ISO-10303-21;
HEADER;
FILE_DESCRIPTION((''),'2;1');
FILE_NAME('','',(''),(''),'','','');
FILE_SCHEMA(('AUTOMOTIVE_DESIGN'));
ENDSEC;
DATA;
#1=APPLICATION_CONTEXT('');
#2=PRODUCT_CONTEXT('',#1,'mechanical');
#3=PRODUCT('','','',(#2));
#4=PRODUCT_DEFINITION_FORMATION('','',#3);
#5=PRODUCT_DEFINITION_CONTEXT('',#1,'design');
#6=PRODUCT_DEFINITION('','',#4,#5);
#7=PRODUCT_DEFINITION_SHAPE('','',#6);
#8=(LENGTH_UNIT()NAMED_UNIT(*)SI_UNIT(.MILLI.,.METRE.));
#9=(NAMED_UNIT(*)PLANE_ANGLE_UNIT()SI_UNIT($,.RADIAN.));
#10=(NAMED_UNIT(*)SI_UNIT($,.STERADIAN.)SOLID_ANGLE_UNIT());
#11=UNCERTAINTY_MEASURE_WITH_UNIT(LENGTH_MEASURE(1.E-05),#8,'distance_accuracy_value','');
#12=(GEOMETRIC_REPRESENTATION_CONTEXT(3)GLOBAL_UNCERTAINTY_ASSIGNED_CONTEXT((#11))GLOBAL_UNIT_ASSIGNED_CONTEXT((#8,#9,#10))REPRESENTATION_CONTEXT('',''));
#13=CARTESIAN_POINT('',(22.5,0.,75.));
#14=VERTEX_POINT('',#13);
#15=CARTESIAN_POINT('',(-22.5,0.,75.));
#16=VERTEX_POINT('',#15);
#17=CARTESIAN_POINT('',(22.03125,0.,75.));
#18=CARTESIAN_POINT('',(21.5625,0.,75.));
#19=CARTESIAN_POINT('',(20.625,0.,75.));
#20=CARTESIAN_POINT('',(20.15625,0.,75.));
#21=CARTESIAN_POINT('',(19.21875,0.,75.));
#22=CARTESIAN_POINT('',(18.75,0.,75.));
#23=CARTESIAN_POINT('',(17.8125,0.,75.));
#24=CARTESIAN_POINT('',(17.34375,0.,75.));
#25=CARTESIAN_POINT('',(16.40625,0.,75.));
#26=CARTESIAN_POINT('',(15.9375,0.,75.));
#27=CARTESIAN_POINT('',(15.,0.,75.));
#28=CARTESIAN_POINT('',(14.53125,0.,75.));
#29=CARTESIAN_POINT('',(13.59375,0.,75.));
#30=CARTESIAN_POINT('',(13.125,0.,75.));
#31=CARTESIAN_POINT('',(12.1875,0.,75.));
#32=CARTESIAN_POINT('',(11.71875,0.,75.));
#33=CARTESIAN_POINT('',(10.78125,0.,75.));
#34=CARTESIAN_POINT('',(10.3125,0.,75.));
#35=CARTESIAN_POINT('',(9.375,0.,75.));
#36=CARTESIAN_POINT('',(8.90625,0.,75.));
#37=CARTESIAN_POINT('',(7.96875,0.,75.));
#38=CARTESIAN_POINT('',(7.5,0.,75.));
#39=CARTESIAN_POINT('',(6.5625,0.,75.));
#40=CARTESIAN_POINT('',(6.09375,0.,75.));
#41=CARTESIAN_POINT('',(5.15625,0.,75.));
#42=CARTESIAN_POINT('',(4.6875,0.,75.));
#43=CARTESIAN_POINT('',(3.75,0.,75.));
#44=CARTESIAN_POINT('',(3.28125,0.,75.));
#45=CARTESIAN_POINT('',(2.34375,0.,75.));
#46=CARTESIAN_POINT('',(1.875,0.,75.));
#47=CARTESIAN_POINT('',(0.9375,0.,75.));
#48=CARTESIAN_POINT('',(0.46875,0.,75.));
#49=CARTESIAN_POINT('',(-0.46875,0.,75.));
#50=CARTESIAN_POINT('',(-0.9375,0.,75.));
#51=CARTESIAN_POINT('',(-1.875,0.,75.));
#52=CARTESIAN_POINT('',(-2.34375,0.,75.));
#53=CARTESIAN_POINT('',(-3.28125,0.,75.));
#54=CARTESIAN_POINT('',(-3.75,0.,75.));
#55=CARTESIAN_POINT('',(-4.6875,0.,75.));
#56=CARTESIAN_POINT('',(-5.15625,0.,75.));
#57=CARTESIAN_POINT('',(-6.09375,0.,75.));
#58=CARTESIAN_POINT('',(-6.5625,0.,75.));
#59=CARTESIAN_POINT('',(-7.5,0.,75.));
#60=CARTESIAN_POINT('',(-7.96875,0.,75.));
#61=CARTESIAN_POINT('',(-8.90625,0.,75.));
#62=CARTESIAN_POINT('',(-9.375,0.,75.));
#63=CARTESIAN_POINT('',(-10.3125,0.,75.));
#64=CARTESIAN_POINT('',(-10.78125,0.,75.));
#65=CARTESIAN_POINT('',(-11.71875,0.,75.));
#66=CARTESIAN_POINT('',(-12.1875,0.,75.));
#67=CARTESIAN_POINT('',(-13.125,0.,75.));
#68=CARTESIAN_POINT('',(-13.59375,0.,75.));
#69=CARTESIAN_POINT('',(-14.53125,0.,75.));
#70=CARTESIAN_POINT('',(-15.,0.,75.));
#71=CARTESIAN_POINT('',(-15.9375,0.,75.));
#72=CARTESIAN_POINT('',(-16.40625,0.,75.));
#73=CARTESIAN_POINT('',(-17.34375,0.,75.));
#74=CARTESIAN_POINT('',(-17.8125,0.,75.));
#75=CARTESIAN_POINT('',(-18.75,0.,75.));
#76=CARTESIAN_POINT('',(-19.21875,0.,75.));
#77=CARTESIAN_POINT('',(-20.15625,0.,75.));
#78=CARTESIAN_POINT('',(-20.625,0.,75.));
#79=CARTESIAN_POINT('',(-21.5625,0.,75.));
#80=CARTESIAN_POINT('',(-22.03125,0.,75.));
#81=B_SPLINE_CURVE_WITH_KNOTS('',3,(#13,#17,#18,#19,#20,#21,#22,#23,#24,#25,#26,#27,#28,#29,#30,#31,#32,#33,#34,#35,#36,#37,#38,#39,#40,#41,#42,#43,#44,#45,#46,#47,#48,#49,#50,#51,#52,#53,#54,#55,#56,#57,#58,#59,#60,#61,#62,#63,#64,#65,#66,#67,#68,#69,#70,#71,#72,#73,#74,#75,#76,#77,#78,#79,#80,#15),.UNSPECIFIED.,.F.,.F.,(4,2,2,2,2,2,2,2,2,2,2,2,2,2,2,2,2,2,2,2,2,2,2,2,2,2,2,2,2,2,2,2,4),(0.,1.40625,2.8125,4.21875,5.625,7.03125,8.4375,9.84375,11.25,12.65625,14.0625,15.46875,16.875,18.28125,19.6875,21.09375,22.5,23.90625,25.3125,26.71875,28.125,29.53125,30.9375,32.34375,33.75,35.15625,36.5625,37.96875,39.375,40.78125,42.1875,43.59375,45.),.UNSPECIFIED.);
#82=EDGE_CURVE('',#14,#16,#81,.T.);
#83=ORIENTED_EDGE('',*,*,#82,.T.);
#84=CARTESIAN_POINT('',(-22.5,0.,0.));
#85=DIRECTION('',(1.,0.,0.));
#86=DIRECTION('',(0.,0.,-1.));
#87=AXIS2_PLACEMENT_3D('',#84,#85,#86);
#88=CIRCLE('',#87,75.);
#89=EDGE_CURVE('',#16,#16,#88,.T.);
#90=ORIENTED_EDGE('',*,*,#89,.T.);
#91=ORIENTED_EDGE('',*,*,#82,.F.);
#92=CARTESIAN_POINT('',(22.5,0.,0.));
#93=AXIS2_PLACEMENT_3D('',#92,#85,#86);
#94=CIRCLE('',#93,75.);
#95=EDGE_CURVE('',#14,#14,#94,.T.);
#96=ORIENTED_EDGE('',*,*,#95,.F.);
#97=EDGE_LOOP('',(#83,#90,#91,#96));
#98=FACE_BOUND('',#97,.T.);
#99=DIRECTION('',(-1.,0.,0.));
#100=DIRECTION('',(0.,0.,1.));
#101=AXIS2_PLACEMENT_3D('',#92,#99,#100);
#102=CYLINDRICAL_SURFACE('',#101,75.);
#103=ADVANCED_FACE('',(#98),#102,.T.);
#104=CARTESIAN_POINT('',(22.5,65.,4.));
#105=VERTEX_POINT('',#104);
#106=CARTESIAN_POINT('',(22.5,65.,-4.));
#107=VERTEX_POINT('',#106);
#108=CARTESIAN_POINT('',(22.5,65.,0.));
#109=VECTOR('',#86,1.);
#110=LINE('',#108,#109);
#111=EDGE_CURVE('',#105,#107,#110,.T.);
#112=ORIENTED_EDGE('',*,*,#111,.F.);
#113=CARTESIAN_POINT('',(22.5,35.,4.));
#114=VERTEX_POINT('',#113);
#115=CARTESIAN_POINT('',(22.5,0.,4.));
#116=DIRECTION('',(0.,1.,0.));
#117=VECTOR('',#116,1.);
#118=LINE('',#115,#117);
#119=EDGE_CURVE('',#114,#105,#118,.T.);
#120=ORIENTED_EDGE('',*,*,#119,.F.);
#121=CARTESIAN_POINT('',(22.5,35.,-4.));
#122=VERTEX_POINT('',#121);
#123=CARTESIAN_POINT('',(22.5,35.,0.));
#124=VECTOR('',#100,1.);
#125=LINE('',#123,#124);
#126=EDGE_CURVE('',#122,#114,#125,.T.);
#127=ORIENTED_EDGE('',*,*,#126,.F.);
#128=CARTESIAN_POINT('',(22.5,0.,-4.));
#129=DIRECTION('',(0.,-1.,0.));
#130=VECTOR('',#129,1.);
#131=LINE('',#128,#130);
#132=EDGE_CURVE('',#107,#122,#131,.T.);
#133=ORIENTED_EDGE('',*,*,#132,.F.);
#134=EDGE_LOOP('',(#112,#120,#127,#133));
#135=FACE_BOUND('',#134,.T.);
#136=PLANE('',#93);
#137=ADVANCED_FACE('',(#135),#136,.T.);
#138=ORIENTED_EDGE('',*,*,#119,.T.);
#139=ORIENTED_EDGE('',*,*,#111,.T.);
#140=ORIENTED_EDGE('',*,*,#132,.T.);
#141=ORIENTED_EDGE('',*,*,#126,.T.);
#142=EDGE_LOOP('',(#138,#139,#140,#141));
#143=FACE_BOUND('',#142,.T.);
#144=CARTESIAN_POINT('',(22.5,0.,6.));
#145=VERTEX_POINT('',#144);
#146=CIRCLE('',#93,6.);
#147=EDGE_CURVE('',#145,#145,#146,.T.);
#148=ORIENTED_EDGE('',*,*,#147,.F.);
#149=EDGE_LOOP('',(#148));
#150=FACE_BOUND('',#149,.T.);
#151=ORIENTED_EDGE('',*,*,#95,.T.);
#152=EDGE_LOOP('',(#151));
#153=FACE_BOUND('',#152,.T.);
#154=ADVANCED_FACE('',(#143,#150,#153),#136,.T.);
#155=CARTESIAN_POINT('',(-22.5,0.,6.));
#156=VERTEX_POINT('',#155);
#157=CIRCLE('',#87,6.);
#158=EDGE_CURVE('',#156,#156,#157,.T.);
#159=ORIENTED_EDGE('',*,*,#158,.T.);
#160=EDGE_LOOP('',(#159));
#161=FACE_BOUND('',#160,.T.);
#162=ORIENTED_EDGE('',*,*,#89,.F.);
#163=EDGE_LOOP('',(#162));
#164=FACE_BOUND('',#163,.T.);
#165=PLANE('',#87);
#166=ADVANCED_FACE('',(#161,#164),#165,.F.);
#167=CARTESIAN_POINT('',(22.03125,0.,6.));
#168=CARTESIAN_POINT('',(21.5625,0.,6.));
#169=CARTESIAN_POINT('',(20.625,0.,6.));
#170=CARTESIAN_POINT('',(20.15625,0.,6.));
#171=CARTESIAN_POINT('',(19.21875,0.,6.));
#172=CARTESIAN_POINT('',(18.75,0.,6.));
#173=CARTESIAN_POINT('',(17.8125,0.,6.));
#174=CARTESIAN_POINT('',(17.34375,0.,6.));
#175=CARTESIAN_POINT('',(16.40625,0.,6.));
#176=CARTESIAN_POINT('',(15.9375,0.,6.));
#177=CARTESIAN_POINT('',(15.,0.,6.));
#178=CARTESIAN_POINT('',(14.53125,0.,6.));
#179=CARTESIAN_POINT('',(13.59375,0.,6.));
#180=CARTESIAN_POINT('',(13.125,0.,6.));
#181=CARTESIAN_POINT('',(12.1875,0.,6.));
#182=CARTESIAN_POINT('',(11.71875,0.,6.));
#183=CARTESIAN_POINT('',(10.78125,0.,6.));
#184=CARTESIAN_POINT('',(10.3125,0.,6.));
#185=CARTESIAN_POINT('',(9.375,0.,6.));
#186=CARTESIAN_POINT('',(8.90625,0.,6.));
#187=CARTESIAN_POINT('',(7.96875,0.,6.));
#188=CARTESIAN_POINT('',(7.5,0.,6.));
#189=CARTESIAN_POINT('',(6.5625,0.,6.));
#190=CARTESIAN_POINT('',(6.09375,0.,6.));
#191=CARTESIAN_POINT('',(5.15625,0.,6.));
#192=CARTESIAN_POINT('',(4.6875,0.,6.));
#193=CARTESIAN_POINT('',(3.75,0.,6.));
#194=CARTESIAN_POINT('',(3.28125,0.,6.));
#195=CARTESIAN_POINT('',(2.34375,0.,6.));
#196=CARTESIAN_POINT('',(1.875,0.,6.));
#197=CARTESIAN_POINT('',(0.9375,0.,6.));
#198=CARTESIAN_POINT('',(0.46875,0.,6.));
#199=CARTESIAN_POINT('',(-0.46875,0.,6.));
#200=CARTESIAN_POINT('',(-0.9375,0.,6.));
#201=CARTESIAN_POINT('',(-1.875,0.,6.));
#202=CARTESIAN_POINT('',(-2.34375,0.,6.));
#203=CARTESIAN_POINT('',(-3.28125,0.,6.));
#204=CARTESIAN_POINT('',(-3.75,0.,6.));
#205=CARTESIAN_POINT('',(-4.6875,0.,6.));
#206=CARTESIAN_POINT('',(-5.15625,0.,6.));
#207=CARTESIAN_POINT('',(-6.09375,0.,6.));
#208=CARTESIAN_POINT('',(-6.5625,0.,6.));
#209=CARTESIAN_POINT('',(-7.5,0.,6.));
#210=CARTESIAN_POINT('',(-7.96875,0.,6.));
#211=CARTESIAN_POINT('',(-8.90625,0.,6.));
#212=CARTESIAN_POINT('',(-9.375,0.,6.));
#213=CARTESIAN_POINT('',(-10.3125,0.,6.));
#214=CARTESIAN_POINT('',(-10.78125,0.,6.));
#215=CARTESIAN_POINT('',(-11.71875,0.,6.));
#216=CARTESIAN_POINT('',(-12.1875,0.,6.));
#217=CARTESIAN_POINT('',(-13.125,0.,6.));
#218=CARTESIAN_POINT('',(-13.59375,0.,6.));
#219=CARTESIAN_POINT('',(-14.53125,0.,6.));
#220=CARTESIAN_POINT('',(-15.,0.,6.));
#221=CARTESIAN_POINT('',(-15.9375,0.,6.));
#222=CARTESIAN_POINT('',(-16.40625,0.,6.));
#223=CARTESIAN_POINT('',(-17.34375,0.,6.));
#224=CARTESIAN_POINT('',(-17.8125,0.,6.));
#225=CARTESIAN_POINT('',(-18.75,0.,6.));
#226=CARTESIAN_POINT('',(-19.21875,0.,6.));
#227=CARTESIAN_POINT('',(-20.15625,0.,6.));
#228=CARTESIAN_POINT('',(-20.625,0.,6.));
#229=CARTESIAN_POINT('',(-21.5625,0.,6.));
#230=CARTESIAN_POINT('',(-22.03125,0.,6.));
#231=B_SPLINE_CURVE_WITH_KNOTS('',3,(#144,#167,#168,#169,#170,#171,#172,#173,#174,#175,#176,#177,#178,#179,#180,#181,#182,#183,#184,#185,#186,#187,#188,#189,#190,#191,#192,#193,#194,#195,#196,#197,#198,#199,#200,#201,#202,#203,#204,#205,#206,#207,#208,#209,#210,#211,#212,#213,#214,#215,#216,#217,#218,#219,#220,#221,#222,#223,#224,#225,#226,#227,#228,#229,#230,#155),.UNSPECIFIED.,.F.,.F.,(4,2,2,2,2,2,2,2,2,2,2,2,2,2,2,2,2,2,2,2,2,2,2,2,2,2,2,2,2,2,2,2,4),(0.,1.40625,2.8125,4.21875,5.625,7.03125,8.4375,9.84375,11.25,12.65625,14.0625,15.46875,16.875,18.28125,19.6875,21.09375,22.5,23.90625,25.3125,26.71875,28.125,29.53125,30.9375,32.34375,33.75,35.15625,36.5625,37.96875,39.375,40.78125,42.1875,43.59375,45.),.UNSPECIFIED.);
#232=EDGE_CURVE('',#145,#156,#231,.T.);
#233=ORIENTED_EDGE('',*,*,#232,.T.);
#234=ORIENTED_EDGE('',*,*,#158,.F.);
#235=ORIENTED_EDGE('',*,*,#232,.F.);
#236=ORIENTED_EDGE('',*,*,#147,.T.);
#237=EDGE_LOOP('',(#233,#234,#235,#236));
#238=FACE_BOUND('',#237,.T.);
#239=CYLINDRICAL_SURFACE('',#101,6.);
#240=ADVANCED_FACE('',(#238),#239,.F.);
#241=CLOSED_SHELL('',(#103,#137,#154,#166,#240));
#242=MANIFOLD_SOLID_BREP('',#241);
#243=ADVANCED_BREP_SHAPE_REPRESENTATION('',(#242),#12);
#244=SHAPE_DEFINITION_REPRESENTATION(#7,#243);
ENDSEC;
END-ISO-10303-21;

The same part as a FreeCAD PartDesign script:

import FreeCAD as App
import Part
import Sketcher

V = App.Vector
Q = App.Units.Quantity

doc = App.newDocument("Part")
body = doc.addObject("PartDesign::Body", "Body")

# Sketch on YZ plane
sketch1 = body.newObject("Sketcher::SketchObject", "Sketch")
sketch1.AttachmentSupport = (doc.getObject("YZ_Plane"), [""])
sketch1.MapMode = "FlatFace"
sketch1.addGeometry([
    Part.Circle(V(0, 0, 0), V(0, 0, 1), 75),
    Part.Circle(V(0, 0, 0), V(0, 0, 1), 6),
], False)
sketch1.addConstraint([
    Sketcher.Constraint("Coincident", 0, 3, -1, 1),
    Sketcher.Constraint("Coincident", 1, 3, -1, 1),
    Sketcher.Constraint("Diameter", 0, Q("150 mm")),
    Sketcher.Constraint("Diameter", 1, Q("12 mm")),
])
pad1 = body.newObject("PartDesign::Pad", "Pad")
pad1.Profile = sketch1
pad1.Length = 45
pad1.Midplane = True

doc.recompute()
